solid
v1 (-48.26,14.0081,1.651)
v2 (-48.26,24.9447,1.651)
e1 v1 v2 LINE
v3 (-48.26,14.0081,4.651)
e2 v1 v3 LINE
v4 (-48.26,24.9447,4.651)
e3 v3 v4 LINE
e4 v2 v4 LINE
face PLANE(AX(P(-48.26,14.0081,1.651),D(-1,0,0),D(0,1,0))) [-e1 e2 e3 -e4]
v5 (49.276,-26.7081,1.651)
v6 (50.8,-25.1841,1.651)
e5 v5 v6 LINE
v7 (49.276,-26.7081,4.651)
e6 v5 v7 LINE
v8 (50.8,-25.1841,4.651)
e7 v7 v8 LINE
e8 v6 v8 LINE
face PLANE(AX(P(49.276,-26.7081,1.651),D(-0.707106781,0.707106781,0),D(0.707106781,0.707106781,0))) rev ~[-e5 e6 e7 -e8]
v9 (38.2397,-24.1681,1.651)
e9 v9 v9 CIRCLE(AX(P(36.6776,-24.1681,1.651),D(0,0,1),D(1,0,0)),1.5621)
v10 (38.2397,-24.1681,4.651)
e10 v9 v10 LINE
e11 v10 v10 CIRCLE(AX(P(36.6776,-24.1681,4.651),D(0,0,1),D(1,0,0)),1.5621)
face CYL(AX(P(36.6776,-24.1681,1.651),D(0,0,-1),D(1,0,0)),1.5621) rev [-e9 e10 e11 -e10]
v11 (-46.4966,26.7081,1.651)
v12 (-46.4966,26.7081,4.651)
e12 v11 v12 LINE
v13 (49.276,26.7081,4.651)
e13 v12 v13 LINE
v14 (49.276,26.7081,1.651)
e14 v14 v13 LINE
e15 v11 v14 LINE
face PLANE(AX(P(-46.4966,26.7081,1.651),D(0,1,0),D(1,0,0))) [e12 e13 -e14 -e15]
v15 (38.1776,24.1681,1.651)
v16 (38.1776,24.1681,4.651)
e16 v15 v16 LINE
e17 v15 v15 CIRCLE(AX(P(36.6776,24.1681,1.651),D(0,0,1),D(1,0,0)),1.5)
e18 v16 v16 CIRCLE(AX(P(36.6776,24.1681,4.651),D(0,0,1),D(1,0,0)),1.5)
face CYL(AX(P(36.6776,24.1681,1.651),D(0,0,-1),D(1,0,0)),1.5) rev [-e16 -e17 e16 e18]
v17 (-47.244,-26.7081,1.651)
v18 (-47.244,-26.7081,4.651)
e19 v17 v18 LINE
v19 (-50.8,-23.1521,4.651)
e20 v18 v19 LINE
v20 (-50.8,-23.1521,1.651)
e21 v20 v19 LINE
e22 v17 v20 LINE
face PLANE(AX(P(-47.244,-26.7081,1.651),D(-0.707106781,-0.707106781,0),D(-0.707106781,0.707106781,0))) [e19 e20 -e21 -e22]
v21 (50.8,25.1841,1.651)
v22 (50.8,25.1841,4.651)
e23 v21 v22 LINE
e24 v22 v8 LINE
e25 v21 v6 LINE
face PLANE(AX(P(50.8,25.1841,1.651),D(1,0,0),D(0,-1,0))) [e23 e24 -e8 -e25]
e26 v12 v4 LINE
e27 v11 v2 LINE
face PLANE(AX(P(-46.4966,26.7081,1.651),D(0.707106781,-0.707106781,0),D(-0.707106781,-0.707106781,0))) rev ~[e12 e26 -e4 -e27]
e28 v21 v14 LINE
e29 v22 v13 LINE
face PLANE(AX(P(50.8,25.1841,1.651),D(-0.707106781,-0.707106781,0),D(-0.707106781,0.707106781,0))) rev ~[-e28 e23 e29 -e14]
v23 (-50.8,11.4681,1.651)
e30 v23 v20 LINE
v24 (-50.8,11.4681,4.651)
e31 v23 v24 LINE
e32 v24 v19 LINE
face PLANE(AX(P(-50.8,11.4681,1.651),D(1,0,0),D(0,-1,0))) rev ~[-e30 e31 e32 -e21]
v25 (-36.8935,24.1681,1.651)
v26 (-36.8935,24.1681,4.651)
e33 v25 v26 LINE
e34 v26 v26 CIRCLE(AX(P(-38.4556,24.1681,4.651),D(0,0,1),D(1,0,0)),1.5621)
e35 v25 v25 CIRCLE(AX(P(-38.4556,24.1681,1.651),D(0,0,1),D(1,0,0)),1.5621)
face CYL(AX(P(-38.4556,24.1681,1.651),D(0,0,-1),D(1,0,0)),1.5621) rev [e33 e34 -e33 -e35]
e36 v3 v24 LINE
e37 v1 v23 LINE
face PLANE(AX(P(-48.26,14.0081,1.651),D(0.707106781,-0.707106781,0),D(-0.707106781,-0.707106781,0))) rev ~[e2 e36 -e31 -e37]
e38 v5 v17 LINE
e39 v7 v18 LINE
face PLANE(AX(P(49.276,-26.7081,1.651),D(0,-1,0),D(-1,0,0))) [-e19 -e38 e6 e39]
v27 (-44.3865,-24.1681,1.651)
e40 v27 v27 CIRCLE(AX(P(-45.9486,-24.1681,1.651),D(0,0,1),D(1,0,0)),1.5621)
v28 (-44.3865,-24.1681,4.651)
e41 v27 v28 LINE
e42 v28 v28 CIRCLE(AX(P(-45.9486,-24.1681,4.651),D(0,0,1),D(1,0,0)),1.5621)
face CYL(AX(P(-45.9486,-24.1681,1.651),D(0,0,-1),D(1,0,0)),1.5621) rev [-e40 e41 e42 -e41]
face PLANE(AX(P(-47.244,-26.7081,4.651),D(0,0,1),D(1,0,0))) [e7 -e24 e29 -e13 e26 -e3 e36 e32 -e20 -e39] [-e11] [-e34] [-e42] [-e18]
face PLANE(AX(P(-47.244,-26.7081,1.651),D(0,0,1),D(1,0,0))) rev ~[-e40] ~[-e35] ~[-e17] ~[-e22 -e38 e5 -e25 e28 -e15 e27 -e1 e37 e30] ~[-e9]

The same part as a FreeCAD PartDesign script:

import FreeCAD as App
import Part
import Sketcher
Q = App.Units.Quantity


def add_polygon(sketch, points):
    """Adds a closed chain of lines whose ends are joined by coincident constraints."""
    first, n = sketch.GeometryCount, len(points)
    for a, b in zip(points, points[1:] + points[:1]):
        sketch.addGeometry(Part.LineSegment(App.Vector(*a, 0), App.Vector(*b, 0)), False)
    for i in range(n):
        sketch.addConstraint(Sketcher.Constraint("Coincident", first + i, 2, first + (i + 1) % n, 1))

doc = App.newDocument("Part")
params = doc.addObject("Spreadsheet::Sheet", "Params")
for row, (alias, value) in enumerate([
    ("sketch1_diameter", "0.123 in"),
    ("sketch1_width", "3.8 in"),
    ("sketch1_height", "1.363 in"),
    ("sketch1_height2", "1.983 in"),
    ("pad1_length", "0.1181102 in"),
], start=1):
    params.set(f"A{row}", alias)
    params.set(f"B{row}", "=" + value)
    params.setAlias(f"B{row}", alias)

body = doc.addObject("PartDesign::Body", "Body")

sketch1 = doc.addObject("Sketcher::SketchObject", "Sketch")
body.addObject(sketch1)
sketch1.AttachmentSupport = (doc.XY_Plane, [""])
sketch1.MapMode = "FlatFace"
sketch1.AttachmentOffset = App.Placement(App.Vector(0, 0, 0.065 * 25.4), App.Rotation())
add_polygon(sketch1, [(-48.3, 14), (-50.8, 11.5), (-50.8, -23.2), (-47.2, -26.7), (49.3, -26.7), (50.8, -25.2), (50.8, 25.2), (49.3, 26.7), (-46.5, 26.7), (-48.3, 24.9)])
sketch1.addGeometry(Part.Circle(App.Vector(-45.9, -24.2, 0), App.Vector(0, 0, 1), 1.6), False)
sketch1.addGeometry(Part.Circle(App.Vector(36.7, -24.2, 0), App.Vector(0, 0, 1), 1.6), False)
sketch1.addGeometry(Part.Circle(App.Vector(-38.5, 24.2, 0), App.Vector(0, 0, 1), 1.6), False)
sketch1.addGeometry(Part.Circle(App.Vector(36.7, 24.2, 0), App.Vector(0, 0, 1), 1.5), False)
sketch1.addConstraint(Sketcher.Constraint("Vertical", 1))
sketch1.addConstraint(Sketcher.Constraint("Horizontal", 3))
sketch1.addConstraint(Sketcher.Constraint("Vertical", 5))
sketch1.addConstraint(Sketcher.Constraint("Horizontal", 7))
sketch1.addConstraint(Sketcher.Constraint("Vertical", 9))
sketch1.addConstraint(Sketcher.Constraint("Equal", 10, 11))
sketch1.addConstraint(Sketcher.Constraint("Equal", 11, 12))
sketch1.addConstraint(Sketcher.Constraint("Symmetric", 11, 3, 13, 3, -1))
sketch1.addConstraint(Sketcher.Constraint("Symmetric", 3, 2, 6, 2, -1))
sketch1.addConstraint(Sketcher.Constraint("Perpendicular", 0, 2))
sketch1.addConstraint(Sketcher.Constraint("Perpendicular", 2, 4))
sketch1.addConstraint(Sketcher.Constraint("Perpendicular", 4, 6))
sketch1.addConstraint(Sketcher.Constraint("Perpendicular", 6, 8))
sketch1.addConstraint(Sketcher.Constraint("Horizontal", 10, 3, 11, 3))
sketch1.addConstraint(Sketcher.Constraint("Horizontal", 12, 3, 13, 3))
sketch1.addConstraint(Sketcher.Constraint("Equal", 4, 6))
sketch1.addConstraint(Sketcher.Constraint("Diameter", 13, Q("0.1181 in")))
sketch1.addConstraint(Sketcher.Constraint("Diameter", 10, Q("0.123 in")))
sketch1.addConstraint(Sketcher.Constraint("DistanceX", 3, 1, 3, 2, Q("3.8 in")))
sketch1.addConstraint(Sketcher.Constraint("DistanceX", 0, 2, -1, 1, Q("2 in")))
sketch1.addConstraint(Sketcher.Constraint("DistanceX", -1, 1, 4, 2, Q("2 in")))
sketch1.addConstraint(Sketcher.Constraint("DistanceX", 8, 2, -1, 1, Q("1.9 in")))
sketch1.addConstraint(Sketcher.Constraint("DistanceY", 0, 2, 12, 3, Q("0.5 in")))
sketch1.addConstraint(Sketcher.Constraint("DistanceY", 2, 2, 10, 3, Q("0.1 in")))
sketch1.addConstraint(Sketcher.Constraint("DistanceY", 1, 2, 1, 1, Q("1.363 in")))
sketch1.addConstraint(Sketcher.Constraint("DistanceY", 5, 1, 5, 2, Q("1.983 in")))
sketch1.addConstraint(Sketcher.Constraint("DistanceX", 10, 3, -1, 1, Q("1.809 in")))
sketch1.addConstraint(Sketcher.Constraint("DistanceX", -1, 1, 11, 3, Q("1.444 in")))
sketch1.addConstraint(Sketcher.Constraint("DistanceX", 12, 3, -1, 1, Q("1.514 in")))
sketch1.addConstraint(Sketcher.Constraint("DistanceX", 7, 2, 7, 1, Q("95.7726 mm")))
sketch1.setExpression("Constraints[27]", "Params.sketch1_diameter")
sketch1.setExpression("Constraints[28]", "Params.sketch1_width")
sketch1.setExpression("Constraints[34]", "Params.sketch1_height")
sketch1.setExpression("Constraints[35]", "Params.sketch1_height2")
pad1 = doc.addObject("PartDesign::Pad", "Pad")
body.addObject(pad1)
pad1.Profile = sketch1
pad1.setExpression("Length", "Params.pad1_length")

doc.recompute()
